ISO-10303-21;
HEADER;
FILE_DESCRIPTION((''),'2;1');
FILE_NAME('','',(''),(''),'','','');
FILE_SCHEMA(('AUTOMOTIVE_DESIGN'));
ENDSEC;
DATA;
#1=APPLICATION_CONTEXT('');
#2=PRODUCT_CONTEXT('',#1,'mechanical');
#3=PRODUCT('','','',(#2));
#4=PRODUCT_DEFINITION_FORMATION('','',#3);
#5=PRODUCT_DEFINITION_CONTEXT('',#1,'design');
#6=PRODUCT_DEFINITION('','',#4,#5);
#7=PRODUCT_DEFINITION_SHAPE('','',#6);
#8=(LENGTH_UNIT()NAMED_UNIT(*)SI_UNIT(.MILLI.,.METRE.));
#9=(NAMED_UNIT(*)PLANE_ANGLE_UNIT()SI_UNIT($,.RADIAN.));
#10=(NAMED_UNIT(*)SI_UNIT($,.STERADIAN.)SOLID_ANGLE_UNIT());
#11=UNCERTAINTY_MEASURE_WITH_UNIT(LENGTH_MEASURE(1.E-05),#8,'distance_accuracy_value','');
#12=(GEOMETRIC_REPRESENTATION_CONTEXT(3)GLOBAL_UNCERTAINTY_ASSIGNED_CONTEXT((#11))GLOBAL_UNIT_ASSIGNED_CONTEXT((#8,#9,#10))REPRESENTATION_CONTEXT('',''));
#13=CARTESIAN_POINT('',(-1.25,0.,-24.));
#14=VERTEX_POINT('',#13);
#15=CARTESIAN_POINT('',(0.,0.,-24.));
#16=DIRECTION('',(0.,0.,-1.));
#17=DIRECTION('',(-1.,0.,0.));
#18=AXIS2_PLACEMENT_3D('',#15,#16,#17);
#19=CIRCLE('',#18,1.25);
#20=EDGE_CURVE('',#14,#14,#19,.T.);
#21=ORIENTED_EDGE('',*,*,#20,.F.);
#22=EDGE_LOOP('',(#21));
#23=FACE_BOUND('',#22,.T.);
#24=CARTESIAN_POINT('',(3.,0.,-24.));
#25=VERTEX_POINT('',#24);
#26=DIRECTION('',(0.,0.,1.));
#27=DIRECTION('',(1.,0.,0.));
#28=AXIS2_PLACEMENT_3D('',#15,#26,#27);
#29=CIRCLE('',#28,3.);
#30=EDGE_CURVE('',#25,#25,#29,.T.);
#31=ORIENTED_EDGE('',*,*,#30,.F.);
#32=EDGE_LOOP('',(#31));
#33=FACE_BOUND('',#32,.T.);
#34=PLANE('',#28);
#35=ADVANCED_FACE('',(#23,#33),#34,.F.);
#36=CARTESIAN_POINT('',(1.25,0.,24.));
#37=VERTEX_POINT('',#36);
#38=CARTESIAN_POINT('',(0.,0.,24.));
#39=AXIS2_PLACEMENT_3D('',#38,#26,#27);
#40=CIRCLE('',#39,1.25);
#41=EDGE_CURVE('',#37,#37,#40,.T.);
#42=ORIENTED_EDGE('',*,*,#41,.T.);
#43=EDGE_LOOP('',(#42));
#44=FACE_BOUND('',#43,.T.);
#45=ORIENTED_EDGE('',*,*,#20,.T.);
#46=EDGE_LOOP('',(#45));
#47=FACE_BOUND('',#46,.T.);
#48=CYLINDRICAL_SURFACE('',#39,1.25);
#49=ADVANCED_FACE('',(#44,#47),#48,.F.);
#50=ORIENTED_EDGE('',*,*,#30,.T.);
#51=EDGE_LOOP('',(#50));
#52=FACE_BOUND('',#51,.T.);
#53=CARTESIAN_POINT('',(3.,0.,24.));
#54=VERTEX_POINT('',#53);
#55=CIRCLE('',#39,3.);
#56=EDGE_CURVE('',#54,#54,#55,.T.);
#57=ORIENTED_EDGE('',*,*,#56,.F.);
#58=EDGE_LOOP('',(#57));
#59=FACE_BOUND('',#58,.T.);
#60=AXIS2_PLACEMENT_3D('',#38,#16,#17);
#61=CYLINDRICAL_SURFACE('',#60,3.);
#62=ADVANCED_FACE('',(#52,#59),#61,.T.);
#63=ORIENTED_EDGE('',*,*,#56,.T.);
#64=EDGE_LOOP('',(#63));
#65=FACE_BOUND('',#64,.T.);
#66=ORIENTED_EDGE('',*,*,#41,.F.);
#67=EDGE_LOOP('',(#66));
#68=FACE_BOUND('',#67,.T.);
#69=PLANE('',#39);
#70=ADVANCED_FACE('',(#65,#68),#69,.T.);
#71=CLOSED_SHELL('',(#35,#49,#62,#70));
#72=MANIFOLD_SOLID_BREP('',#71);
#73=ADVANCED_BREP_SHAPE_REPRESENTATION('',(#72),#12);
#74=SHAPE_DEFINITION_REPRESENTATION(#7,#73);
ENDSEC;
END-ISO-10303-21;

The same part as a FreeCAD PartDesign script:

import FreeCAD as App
import Part
import Sketcher

V = App.Vector
Q = App.Units.Quantity

doc = App.newDocument("Part")
params = doc.addObject("Spreadsheet::Sheet", "Params")
for row, (alias, value) in enumerate([
    ("sketch1_diameter", "6 mm"),
    ("pad1_length", "48 mm"),
    ("sketch2_diameter", "2.5 mm"),
    ("hole_diameter", "2.5 mm"),
    ("hole_depth", "24 mm"),
], start=1):
    params.set(f"A{row}", alias)
    params.set(f"B{row}", "=" + value)
    params.setAlias(f"B{row}", alias)

body = doc.addObject("PartDesign::Body", "Body")

# Sketch on XY plane
sketch1 = body.newObject("Sketcher::SketchObject", "Sketch")
sketch1.AttachmentSupport = (doc.getObject("XY_Plane"), [""])
sketch1.MapMode = "FlatFace"
sketch1.addGeometry(Part.Circle(V(0, 0, 0), V(0, 0, 1), 3), False)
sketch1.addConstraint([
    Sketcher.Constraint("Coincident", 0, 3, -1, 1),
    Sketcher.Constraint("Diameter", 0, Q("6 mm")),
])
sketch1.setExpression("Constraints[1]", "Params.sketch1_diameter")
pad1 = body.newObject("PartDesign::Pad", "Pad")
pad1.Profile = sketch1
pad1.setExpression("Length", "Params.pad1_length")
pad1.Midplane = True

# Sketch on XY plane
sketch2 = body.newObject("Sketcher::SketchObject", "Sketch001")
sketch2.AttachmentSupport = (doc.getObject("XY_Plane"), [""])
sketch2.MapMode = "FlatFace"
sketch2.AttachmentOffset = App.Placement(V(0, 0, 24), App.Rotation())
sketch2.addGeometry(Part.Circle(V(0, 0, 0), V(0, 0, 1), 1.2), False)
sketch2.addConstraint([
    Sketcher.Constraint("Coincident", 0, 3, -1, 1),
    Sketcher.Constraint("Diameter", 0, Q("2.5 mm")),
])
sketch2.setExpression("Constraints[1]", "Params.sketch2_diameter")
doc.recompute()
hole = body.newObject("PartDesign::Hole", "Hole")
hole.Profile = sketch2
hole.ThreadType = "None"
hole.setExpression("Diameter", "Params.hole_diameter")
hole.DepthType = "Dimension"
hole.setExpression("Depth", "Params.hole_depth")
hole.DrillPoint = "Flat"
doc.recompute()

mirrored = body.newObject("PartDesign::Mirrored", "Mirrored")
mirrored.Originals = [hole]
mirrored.MirrorPlane = (doc.getObject("XY_Plane"), [""])
body.Tip = mirrored

doc.recompute()
